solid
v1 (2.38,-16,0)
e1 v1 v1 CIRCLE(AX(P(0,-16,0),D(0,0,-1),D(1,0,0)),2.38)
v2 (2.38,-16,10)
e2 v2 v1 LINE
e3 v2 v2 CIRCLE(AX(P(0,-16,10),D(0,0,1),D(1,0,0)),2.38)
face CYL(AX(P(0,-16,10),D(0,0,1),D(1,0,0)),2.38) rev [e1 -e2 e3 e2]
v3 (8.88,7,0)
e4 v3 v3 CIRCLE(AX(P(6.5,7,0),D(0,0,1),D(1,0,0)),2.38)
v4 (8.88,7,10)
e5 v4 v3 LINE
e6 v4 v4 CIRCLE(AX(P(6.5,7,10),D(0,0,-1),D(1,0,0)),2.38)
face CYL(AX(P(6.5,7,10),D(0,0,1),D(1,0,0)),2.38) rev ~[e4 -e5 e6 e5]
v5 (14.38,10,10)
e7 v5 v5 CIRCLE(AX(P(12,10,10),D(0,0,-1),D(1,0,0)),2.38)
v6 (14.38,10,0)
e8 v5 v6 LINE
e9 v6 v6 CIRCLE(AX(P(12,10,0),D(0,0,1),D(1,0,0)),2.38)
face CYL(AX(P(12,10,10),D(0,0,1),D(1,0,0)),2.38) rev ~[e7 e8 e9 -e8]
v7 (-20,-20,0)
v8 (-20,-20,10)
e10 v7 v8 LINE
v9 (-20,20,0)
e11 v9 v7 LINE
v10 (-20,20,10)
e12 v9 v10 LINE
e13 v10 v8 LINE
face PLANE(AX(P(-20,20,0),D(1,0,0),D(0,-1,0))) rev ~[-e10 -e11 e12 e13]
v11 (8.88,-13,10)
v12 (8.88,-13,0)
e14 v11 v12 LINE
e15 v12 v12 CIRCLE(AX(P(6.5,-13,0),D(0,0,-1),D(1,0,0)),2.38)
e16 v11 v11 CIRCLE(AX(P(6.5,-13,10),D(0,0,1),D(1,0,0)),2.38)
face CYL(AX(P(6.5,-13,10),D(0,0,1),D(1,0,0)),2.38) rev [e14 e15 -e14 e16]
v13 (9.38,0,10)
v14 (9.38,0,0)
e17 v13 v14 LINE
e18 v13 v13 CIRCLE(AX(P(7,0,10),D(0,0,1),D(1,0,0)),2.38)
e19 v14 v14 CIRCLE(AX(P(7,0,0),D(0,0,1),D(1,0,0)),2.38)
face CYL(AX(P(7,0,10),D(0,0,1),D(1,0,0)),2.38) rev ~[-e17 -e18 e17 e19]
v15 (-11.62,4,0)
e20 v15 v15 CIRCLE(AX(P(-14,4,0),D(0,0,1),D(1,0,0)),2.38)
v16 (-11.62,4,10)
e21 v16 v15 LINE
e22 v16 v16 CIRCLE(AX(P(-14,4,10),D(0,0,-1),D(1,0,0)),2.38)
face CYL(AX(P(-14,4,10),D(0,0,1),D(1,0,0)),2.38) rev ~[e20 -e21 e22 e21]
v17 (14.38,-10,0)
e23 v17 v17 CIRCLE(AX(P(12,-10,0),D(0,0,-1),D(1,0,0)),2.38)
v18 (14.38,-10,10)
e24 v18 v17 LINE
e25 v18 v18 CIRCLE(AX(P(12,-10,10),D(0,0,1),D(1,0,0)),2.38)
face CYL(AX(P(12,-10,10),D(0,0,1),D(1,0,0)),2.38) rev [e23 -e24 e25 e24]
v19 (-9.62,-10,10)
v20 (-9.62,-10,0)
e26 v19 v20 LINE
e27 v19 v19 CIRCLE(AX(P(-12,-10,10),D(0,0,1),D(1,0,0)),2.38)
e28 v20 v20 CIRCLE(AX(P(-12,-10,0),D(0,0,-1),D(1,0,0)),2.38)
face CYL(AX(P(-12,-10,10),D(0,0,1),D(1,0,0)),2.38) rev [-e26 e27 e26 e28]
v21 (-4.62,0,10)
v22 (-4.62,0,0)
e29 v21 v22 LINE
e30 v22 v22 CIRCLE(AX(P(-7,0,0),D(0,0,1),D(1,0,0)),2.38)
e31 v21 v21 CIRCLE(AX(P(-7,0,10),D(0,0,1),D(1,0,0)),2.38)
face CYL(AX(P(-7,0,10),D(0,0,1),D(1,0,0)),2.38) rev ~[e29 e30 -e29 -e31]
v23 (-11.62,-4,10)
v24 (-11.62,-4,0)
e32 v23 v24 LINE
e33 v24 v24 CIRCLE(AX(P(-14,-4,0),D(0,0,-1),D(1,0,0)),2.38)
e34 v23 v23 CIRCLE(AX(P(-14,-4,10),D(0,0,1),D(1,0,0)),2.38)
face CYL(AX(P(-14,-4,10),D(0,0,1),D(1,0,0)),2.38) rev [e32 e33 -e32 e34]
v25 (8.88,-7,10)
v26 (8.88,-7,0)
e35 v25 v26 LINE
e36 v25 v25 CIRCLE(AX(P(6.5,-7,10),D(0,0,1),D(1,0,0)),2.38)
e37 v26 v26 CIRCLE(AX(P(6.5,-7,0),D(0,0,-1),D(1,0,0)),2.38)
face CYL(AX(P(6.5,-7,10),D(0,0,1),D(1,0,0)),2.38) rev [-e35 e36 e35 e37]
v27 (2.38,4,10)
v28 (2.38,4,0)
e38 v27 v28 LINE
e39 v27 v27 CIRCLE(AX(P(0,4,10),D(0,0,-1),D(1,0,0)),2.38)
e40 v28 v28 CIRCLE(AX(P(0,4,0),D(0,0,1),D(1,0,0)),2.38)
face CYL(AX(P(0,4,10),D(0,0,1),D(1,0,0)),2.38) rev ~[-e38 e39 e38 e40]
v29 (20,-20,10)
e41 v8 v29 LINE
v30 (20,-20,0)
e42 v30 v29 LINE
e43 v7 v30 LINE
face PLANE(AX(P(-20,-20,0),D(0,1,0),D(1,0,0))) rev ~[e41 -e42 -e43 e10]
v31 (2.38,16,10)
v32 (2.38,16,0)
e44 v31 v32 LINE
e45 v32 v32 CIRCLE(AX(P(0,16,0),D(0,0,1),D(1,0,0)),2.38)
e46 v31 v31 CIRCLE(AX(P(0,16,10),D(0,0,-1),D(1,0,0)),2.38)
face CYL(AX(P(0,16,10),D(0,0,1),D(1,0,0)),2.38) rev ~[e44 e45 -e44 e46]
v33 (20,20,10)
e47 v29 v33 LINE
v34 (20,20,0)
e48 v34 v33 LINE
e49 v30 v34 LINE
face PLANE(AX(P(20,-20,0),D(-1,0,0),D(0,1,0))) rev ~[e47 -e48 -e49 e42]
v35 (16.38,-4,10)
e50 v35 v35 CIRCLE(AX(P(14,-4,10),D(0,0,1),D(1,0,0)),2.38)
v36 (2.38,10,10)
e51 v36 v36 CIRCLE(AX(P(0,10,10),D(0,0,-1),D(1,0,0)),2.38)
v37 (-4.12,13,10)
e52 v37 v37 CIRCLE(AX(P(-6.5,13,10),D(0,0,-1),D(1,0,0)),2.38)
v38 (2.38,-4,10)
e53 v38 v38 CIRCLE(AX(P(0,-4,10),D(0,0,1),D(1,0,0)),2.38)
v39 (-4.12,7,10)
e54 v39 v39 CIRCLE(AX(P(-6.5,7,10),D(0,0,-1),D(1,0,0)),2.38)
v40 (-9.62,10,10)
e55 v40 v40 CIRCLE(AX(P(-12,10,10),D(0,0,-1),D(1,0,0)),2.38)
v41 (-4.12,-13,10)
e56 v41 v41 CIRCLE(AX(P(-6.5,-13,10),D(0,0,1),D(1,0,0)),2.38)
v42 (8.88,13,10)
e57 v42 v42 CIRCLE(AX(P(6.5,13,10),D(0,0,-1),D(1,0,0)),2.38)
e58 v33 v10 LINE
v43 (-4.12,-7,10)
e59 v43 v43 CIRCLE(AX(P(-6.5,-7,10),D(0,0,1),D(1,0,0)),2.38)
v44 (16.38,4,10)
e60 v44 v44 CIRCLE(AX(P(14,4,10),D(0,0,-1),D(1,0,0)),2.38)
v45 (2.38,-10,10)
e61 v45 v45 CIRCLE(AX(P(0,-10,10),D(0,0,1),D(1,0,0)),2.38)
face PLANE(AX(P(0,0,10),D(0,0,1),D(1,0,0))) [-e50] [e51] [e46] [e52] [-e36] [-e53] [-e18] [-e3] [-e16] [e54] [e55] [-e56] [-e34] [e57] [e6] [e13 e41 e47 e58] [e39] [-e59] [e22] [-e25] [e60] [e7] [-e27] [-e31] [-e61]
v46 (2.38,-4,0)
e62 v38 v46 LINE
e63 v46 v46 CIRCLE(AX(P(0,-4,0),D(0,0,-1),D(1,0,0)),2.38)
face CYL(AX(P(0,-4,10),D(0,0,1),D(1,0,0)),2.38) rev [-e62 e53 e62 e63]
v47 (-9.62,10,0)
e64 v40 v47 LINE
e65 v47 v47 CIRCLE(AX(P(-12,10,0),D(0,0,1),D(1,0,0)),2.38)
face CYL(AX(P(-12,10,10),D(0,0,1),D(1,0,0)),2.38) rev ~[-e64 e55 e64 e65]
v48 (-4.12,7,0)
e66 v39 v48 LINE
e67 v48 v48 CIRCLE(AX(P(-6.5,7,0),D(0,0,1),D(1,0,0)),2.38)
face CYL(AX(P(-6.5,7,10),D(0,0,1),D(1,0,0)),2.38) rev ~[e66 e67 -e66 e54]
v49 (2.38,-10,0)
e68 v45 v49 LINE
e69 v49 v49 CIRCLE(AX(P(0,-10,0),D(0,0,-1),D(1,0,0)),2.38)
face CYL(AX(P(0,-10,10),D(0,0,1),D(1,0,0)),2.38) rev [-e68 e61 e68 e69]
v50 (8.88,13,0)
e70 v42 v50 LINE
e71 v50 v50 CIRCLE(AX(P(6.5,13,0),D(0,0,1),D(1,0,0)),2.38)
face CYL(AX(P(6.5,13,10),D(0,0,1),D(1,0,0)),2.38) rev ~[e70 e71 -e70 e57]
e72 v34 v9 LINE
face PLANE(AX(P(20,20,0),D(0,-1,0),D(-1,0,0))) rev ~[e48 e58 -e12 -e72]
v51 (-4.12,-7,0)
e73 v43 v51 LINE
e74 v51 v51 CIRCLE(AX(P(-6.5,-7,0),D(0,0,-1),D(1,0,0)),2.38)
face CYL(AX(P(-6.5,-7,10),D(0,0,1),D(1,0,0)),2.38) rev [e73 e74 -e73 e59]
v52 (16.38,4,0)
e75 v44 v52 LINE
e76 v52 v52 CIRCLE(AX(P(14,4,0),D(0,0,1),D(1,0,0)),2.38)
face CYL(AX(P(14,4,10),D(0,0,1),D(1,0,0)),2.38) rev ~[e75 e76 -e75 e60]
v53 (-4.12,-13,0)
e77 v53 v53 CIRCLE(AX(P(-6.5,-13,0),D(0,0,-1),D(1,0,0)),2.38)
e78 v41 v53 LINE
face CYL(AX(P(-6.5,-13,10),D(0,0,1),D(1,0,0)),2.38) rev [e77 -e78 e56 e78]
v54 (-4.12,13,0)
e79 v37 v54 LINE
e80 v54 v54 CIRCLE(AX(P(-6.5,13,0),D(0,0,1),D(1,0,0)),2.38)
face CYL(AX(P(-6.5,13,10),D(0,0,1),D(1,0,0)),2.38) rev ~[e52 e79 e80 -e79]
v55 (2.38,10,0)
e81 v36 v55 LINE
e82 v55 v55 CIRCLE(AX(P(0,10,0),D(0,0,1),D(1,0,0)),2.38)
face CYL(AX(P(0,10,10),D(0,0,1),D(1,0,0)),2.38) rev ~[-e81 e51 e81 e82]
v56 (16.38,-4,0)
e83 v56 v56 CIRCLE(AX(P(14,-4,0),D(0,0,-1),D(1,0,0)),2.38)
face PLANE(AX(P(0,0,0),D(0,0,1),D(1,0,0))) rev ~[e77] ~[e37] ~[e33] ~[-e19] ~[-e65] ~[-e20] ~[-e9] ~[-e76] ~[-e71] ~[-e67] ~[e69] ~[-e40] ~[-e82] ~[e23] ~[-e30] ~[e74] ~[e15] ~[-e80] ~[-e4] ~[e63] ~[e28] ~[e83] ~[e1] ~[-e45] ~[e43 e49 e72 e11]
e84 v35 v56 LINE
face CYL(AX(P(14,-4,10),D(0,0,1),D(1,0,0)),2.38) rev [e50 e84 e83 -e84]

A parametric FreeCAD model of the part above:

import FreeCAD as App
import Part
import Sketcher
from FreeCAD import Vector

doc = App.newDocument("Part")
params = doc.addObject("Spreadsheet::Sheet", "Params")
for row, (alias, value) in enumerate([
    ("sketch1_width", "40 mm"),
    ("pad1_length", "10 mm"),
    ("sketch2_diameter", "4.76 mm"),
], start=1):
    params.set(f"A{row}", alias)
    params.set(f"B{row}", "=" + value)
    params.setAlias(f"B{row}", alias)

body = doc.addObject("PartDesign::Body", "Body")

sketch1 = doc.addObject("Sketcher::SketchObject", "Sketch")
body.addObject(sketch1)
sketch1.AttachmentSupport = (doc.XY_Plane, [""])
sketch1.MapMode = "FlatFace"
sketch1.addGeometry([
    Part.LineSegment(Vector(-20, 20, 0), Vector(-20, -20, 0)),
    Part.LineSegment(Vector(-20, -20, 0), Vector(20, -20, 0)),
    Part.LineSegment(Vector(20, -20, 0), Vector(20, 20, 0)),
    Part.LineSegment(Vector(20, 20, 0), Vector(-20, 20, 0)),
], False)
sketch1.addConstraint([
    Sketcher.Constraint("Coincident", 0, 2, 1, 1),
    Sketcher.Constraint("Coincident", 1, 2, 2, 1),
    Sketcher.Constraint("Coincident", 2, 2, 3, 1),
    Sketcher.Constraint("Coincident", 3, 2, 0, 1),
    Sketcher.Constraint("Vertical", 0),
    Sketcher.Constraint("Horizontal", 1),
    Sketcher.Constraint("Vertical", 2),
    Sketcher.Constraint("Horizontal", 3),
    Sketcher.Constraint("Symmetric", 0, 2, 2, 2, -1, 1),
    Sketcher.Constraint("Equal", 3, 0),
    Sketcher.Constraint("DistanceX", 1, 1, 1, 2, 40.0),
])
sketch1.setExpression("Constraints[10]", "Params.sketch1_width")
pad1 = doc.addObject("PartDesign::Pad", "Pad")
body.addObject(pad1)
pad1.Profile = sketch1
pad1.setExpression("Length", "Params.pad1_length")

sketch2 = doc.addObject("Sketcher::SketchObject", "Sketch001")
body.addObject(sketch2)
sketch2.AttachmentSupport = (doc.XY_Plane, [""])
sketch2.MapMode = "FlatFace"
sketch2.AttachmentOffset = App.Placement(Vector(0, 0, 10), App.Rotation())
sketch2.addGeometry([
    Part.Circle(Vector(14, 4, 0), Vector(0, 0, 1), 2.4),
    Part.Circle(Vector(-14, 4, 0), Vector(0, 0, 1), 2.4),
    Part.Circle(Vector(6.5, 7, 0), Vector(0, 0, 1), 2.4),
    Part.Circle(Vector(-6.5, 7, 0), Vector(0, 0, 1), 2.4),
    Part.Circle(Vector(12, 10, 0), Vector(0, 0, 1), 2.4),
    Part.Circle(Vector(0, 4, 0), Vector(0, 0, 1), 2.4),
    Part.Circle(Vector(-12, 10, 0), Vector(0, 0, 1), 2.4),
    Part.Circle(Vector(6.5, 13, 0), Vector(0, 0, 1), 2.4),
    Part.Circle(Vector(-6.5, 13, 0), Vector(0, 0, 1), 2.4),
    Part.Circle(Vector(0, 16, 0), Vector(0, 0, 1), 2.4),
    Part.Circle(Vector(0, 10, 0), Vector(0, 0, 1), 2.4),
    Part.Circle(Vector(-7, 0, 0), Vector(0, 0, 1), 2.4),
    Part.Circle(Vector(7, 0, 0), Vector(0, 0, 1), 2.4),
], False)
sketch2.addConstraint([
    Sketcher.Constraint("Equal", 0, 1),
    Sketcher.Constraint("Equal", 1, 2),
    Sketcher.Constraint("Equal", 2, 3),
    Sketcher.Constraint("Equal", 3, 4),
    Sketcher.Constraint("Equal", 4, 5),
    Sketcher.Constraint("Equal", 5, 6),
    Sketcher.Constraint("Equal", 6, 7),
    Sketcher.Constraint("Equal", 7, 8),
    Sketcher.Constraint("Equal", 8, 9),
    Sketcher.Constraint("Equal", 9, 10),
    Sketcher.Constraint("Equal", 10, 11),
    Sketcher.Constraint("Equal", 11, 12),
    Sketcher.Constraint("Symmetric", 11, 3, 12, 3, -1, 1),
    Sketcher.Constraint("Symmetric", 0, 3, 1, 3, -2),
    Sketcher.Constraint("Symmetric", 2, 3, 3, 3, -2),
    Sketcher.Constraint("Symmetric", 4, 3, 6, 3, -2),
    Sketcher.Constraint("Symmetric", 7, 3, 8, 3, -2),
    Sketcher.Constraint("PointOnObject", 5, 3, -2),
    Sketcher.Constraint("PointOnObject", 9, 3, -2),
    Sketcher.Constraint("PointOnObject", 10, 3, -2),
    Sketcher.Constraint("PointOnObject", 11, 3, -1),
    Sketcher.Constraint("Horizontal", 1, 3, 5, 3),
    Sketcher.Constraint("Horizontal", 6, 3, 10, 3),
    Sketcher.Constraint("Vertical", 2, 3, 7, 3),
    Sketcher.Constraint("Diameter", 0, 4.76),
    Sketcher.Constraint("DistanceX", -1, 1, 0, 3, 14.0),
    Sketcher.Constraint("DistanceY", -1, 1, 2, 3, 7.0),
    Sketcher.Constraint("DistanceX", -1, 1, 4, 3, 12.0),
    Sketcher.Constraint("DistanceY", -1, 1, 9, 3, 16.0),
    Sketcher.Constraint("DistanceX", 11, 3, -1, 1, 7.0),
    Sketcher.Constraint("DistanceY", 0, 3, 2, 3, 3.0),
    Sketcher.Constraint("DistanceY", 2, 3, 4, 3, 3.0),
    Sketcher.Constraint("DistanceY", 4, 3, 7, 3, 3.0),
    Sketcher.Constraint("DistanceX", -1, 1, 2, 3, 6.5),
])
sketch2.setExpression("Constraints[24]", "Params.sketch2_diameter")
pocket1 = doc.addObject("PartDesign::Pocket", "Pocket")
body.addObject(pocket1)
pocket1.Profile = sketch2
pocket1.Type = "UpToFirst"
doc.recompute()

mirrored = doc.addObject("PartDesign::Mirrored", "Mirrored")
body.addObject(mirrored)
mirrored.Originals = [pocket1]
mirrored.MirrorPlane = (doc.XZ_Plane, [""])
body.Tip = mirrored

doc.recompute()
